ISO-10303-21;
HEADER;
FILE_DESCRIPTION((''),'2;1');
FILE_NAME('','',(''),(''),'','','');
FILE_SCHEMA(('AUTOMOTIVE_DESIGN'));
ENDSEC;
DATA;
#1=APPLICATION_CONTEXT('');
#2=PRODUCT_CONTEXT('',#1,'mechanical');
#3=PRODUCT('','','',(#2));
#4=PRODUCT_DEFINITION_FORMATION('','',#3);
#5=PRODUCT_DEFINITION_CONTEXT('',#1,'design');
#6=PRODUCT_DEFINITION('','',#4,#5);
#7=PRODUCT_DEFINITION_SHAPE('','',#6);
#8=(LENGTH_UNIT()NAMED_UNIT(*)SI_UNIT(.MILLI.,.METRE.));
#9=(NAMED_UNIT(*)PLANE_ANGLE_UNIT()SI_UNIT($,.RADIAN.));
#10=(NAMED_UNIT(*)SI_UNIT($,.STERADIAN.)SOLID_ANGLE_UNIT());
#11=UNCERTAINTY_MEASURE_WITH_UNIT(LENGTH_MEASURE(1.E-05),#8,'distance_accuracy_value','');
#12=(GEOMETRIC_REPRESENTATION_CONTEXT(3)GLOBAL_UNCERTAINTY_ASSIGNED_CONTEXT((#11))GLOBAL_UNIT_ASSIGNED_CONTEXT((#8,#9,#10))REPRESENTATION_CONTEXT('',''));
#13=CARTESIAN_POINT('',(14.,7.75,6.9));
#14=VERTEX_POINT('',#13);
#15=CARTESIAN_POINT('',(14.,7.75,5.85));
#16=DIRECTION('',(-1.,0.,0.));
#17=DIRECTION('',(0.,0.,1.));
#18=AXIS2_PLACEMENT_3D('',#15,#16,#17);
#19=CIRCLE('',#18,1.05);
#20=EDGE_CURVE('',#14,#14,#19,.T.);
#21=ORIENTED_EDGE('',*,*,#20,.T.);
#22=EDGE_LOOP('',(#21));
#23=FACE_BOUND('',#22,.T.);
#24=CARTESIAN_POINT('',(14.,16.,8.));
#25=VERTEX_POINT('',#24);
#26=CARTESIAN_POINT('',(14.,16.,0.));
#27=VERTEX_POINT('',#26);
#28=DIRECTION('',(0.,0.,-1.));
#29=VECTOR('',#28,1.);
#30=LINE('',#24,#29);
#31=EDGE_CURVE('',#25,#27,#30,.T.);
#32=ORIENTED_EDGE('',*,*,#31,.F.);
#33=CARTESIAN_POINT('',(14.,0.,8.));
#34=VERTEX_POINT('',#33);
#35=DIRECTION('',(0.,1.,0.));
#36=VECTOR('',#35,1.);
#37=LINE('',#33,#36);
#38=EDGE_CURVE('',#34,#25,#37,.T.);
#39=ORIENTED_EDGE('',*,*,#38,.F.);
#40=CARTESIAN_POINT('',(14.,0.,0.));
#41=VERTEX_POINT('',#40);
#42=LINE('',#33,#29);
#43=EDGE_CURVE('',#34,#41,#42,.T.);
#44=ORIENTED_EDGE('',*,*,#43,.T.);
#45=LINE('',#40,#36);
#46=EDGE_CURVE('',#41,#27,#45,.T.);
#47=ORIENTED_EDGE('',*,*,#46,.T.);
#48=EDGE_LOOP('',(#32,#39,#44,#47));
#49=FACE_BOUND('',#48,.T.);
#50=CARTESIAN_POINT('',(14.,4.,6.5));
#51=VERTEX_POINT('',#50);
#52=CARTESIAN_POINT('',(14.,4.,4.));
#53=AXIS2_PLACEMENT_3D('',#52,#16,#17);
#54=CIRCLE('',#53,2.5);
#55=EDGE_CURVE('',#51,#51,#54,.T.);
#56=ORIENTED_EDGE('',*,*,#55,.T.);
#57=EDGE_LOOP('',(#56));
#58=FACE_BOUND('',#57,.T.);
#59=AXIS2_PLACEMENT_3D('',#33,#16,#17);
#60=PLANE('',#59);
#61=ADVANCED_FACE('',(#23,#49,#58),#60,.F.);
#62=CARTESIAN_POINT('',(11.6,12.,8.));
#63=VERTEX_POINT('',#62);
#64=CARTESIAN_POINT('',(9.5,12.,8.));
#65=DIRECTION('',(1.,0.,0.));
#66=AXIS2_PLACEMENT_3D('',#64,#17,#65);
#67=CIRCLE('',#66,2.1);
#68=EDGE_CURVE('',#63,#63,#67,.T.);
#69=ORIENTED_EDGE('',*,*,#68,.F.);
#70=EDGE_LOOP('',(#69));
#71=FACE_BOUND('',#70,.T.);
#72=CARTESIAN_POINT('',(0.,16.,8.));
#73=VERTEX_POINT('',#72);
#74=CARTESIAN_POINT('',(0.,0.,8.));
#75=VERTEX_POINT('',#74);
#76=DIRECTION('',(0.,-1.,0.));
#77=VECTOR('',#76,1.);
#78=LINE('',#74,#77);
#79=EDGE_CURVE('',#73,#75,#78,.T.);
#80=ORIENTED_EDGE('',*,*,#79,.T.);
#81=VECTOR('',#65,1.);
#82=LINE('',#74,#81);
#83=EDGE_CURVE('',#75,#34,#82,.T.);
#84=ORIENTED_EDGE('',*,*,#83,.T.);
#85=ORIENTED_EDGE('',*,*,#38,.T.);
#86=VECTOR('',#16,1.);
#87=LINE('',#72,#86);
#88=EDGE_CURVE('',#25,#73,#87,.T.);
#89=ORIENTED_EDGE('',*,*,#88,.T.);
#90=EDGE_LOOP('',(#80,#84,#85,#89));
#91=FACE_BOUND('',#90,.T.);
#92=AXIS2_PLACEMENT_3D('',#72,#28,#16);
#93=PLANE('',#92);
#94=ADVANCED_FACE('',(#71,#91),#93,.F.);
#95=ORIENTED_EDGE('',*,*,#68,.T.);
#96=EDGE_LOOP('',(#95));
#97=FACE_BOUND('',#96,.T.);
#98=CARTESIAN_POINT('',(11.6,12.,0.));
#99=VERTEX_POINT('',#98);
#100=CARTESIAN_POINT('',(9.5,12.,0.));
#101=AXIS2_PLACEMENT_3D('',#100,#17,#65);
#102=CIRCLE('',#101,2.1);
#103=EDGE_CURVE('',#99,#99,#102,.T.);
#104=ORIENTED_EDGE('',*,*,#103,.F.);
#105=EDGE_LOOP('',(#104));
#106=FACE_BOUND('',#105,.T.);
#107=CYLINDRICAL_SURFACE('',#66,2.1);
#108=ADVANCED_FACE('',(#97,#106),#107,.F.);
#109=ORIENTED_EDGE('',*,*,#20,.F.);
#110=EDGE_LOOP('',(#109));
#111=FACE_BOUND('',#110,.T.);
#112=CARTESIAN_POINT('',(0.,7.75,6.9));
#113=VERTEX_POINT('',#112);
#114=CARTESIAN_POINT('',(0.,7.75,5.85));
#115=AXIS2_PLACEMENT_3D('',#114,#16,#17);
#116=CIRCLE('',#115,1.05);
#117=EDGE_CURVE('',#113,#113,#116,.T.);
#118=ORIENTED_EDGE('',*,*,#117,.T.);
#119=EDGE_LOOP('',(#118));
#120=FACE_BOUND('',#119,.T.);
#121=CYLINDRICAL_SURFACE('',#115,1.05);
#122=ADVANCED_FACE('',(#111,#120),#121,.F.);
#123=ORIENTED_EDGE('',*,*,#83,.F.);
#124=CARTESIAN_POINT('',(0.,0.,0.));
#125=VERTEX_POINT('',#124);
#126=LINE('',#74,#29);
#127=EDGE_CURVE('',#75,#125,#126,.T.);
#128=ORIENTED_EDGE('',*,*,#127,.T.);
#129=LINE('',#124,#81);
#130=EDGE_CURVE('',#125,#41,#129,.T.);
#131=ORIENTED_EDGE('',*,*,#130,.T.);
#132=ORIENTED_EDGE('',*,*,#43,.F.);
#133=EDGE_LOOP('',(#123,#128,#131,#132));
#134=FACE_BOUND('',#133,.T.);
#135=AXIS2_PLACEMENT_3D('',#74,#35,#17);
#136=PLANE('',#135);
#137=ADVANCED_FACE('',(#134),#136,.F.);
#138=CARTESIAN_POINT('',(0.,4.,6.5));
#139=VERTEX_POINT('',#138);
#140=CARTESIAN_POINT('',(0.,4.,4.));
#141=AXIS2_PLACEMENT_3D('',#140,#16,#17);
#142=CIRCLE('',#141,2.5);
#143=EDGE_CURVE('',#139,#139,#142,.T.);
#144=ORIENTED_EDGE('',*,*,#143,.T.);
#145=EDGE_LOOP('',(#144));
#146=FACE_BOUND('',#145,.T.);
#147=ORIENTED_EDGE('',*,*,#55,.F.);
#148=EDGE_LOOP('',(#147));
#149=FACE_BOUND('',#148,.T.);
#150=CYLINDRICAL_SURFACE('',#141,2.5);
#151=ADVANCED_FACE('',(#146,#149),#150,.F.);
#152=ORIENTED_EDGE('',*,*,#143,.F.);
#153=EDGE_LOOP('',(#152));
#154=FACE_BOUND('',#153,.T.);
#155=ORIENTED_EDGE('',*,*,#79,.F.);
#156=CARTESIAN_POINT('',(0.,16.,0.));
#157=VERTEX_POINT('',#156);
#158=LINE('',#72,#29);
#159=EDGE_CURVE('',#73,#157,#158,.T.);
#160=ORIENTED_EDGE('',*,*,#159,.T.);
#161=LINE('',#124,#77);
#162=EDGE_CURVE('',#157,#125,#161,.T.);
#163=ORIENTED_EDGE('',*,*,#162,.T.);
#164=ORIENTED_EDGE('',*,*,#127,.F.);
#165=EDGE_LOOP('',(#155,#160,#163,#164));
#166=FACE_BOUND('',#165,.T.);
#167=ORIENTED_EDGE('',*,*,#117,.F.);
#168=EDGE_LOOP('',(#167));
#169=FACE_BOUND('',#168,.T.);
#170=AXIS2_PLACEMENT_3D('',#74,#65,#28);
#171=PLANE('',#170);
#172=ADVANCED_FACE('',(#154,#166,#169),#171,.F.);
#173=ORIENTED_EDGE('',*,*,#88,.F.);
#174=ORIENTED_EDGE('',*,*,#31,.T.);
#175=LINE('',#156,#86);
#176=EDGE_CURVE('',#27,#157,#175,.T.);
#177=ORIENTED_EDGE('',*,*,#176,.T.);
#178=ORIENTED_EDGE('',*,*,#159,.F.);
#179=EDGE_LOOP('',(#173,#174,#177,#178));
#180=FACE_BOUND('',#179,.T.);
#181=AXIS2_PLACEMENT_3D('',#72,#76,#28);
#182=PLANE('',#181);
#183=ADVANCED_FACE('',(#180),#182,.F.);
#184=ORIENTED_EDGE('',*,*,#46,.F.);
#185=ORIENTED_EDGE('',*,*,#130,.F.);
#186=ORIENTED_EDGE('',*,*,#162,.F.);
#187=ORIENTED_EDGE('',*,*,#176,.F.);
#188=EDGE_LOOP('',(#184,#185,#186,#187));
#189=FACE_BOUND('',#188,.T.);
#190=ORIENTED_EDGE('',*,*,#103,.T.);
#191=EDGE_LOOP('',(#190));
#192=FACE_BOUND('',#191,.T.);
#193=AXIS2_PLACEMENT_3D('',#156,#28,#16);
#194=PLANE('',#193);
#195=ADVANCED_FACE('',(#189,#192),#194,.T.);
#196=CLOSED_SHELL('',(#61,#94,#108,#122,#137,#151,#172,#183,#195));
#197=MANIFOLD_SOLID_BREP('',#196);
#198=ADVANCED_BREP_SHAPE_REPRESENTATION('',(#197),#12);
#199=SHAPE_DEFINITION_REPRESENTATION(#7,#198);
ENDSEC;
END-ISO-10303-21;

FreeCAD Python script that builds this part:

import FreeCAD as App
import Part
import Sketcher
Q = App.Units.Quantity


def add_polygon(sketch, points):
    """Adds a closed chain of lines whose ends are joined by coincident constraints."""
    first, n = sketch.GeometryCount, len(points)
    for a, b in zip(points, points[1:] + points[:1]):
        sketch.addGeometry(Part.LineSegment(App.Vector(*a, 0), App.Vector(*b, 0)), False)
    for i in range(n):
        sketch.addConstraint(Sketcher.Constraint("Coincident", first + i, 2, first + (i + 1) % n, 1))

doc = App.newDocument("Part")
body = doc.addObject("PartDesign::Body", "Body")

# Sketch on XY plane
sketch1 = doc.addObject("Sketcher::SketchObject", "Sketch")
body.addObject(sketch1)
sketch1.AttachmentSupport = (doc.XY_Plane, [""])
sketch1.MapMode = "FlatFace"
add_polygon(sketch1, [(0, 16), (0, 0), (14, 0), (14, 16)])  # lines 0-3
sketch1.addConstraint(Sketcher.Constraint("Vertical", 0))
sketch1.addConstraint(Sketcher.Constraint("Horizontal", 1))
sketch1.addConstraint(Sketcher.Constraint("Vertical", 2))
sketch1.addConstraint(Sketcher.Constraint("Horizontal", 3))
sketch1.addConstraint(Sketcher.Constraint("Coincident", 0, 2, -1, 1))
sketch1.addConstraint(Sketcher.Constraint("DistanceX", 1, 1, 1, 2, Q("14 mm")))
sketch1.addConstraint(Sketcher.Constraint("DistanceY", 0, 2, 0, 1, Q("16 mm")))
pad1 = doc.addObject("PartDesign::Pad", "Pad")
body.addObject(pad1)
pad1.Profile = sketch1
pad1.Length = 8

# Sketch on XY plane
sketch2 = doc.addObject("Sketcher::SketchObject", "Sketch001")
body.addObject(sketch2)
sketch2.AttachmentSupport = (doc.XY_Plane, [""])
sketch2.MapMode = "FlatFace"
sketch2.AttachmentOffset = App.Placement(App.Vector(0, 0, 8), App.Rotation())
sketch2.addGeometry(Part.Circle(App.Vector(9.5, 12, 0), App.Vector(0, 0, 1), 2.1), False)
sketch2.addConstraint(Sketcher.Constraint("Diameter", 0, Q("4.2 mm")))
sketch2.addConstraint(Sketcher.Constraint("DistanceY", -1, 1, 0, 3, Q("12 mm")))
sketch2.addConstraint(Sketcher.Constraint("DistanceX", -1, 1, 0, 3, Q("9.5 mm")))
doc.recompute()
hole = doc.addObject("PartDesign::Hole", "Hole")
body.addObject(hole)
hole.Profile = sketch2
hole.ThreadType = "None"
hole.Diameter = 4.2
hole.DepthType = "ThroughAll"

# Sketch on YZ plane
sketch3 = doc.addObject("Sketcher::SketchObject", "Sketch002")
body.addObject(sketch3)
sketch3.AttachmentSupport = (doc.YZ_Plane, [""])
sketch3.MapMode = "FlatFace"
sketch3.addGeometry(Part.Circle(App.Vector(4, 4, 0), App.Vector(0, 0, 1), 2.5), False)
sketch3.addConstraint(Sketcher.Constraint("Diameter", 0, Q("5 mm")))
sketch3.addConstraint(Sketcher.Constraint("DistanceX", -1, 1, 0, 3, Q("4 mm")))
sketch3.addConstraint(Sketcher.Constraint("DistanceY", -1, 1, 0, 3, Q("4 mm")))
doc.recompute()
hole2 = doc.addObject("PartDesign::Hole", "Hole001")
body.addObject(hole2)
hole2.Profile = sketch3
hole2.ThreadType = "None"
hole2.Diameter = 5
hole2.DepthType = "ThroughAll"
hole2.Reversed = True

# Sketch on YZ plane
sketch4 = doc.addObject("Sketcher::SketchObject", "Sketch003")
body.addObject(sketch4)
sketch4.AttachmentSupport = (doc.YZ_Plane, [""])
sketch4.MapMode = "FlatFace"
sketch4.addGeometry(Part.Circle(App.Vector(7.75, 5.85, 0), App.Vector(0, 0, 1), 1.05), False)
sketch4.addConstraint(Sketcher.Constraint("Diameter", 0, Q("2.1 mm")))
sketch4.addConstraint(Sketcher.Constraint("DistanceX", -1, 1, 0, 3, Q("7.75 mm")))
sketch4.addConstraint(Sketcher.Constraint("DistanceY", -1, 1, 0, 3, Q("5.85 mm")))
doc.recompute()
hole3 = doc.addObject("PartDesign::Hole", "Hole002")
body.addObject(hole3)
hole3.Profile = sketch4
hole3.ThreadType = "None"
hole3.Diameter = 2.1
hole3.DepthType = "ThroughAll"
hole3.Reversed = True

doc.recompute()
